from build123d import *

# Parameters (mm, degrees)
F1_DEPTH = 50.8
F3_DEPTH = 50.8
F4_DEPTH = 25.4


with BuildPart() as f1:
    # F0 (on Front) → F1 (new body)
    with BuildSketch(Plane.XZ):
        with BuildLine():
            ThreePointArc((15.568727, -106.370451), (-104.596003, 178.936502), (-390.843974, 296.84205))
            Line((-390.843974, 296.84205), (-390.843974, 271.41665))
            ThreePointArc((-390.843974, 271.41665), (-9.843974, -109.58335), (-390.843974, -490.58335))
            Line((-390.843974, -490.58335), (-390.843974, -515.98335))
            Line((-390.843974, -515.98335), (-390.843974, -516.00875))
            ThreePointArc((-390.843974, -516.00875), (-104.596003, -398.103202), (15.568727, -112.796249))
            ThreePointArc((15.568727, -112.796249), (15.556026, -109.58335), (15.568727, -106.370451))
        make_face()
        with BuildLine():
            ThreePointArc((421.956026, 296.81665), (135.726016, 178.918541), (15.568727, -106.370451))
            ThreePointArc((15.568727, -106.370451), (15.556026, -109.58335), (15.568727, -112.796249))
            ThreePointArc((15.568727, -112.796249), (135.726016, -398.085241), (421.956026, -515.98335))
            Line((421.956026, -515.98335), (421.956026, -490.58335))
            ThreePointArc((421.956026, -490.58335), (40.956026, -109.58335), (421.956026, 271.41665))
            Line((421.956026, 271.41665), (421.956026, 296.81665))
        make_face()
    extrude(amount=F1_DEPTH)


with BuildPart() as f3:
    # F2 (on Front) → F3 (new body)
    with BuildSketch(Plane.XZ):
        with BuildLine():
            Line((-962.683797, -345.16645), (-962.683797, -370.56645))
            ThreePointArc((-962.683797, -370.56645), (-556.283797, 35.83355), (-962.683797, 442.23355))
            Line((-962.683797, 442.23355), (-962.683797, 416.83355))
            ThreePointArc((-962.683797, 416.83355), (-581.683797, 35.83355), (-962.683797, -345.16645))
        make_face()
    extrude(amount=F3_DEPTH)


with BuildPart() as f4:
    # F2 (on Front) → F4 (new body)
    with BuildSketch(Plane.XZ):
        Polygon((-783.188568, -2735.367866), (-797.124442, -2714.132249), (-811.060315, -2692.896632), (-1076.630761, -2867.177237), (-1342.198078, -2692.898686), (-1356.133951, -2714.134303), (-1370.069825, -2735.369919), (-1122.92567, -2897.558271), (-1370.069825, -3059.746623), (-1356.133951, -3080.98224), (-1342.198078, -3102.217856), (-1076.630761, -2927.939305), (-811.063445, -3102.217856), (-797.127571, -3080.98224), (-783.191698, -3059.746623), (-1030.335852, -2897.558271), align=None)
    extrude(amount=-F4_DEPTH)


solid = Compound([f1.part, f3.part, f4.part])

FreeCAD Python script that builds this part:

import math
import FreeCAD as App
import Part
import Sketcher
from FreeCAD import Vector
Q = App.Units.Quantity

doc = App.newDocument("Part")
body = doc.addObject("PartDesign::Body", "Body")

# Sketch on XZ plane
sketch1 = body.newObject("Sketcher::SketchObject", "Sketch")
sketch1.AttachmentSupport = (doc.getObject("XZ_Plane"), [""])
sketch1.MapMode = "FlatFace"
sketch1.addGeometry(Part.ArcOfCircle(Part.Circle(Vector(-390.843974, -109.583351, 0), Vector(0, 0, 1), 406.425401), math.radians(0.452943), math.radians(90)), False)
sketch1.addGeometry(Part.LineSegment(Vector(-390.843974, 296.84205, 0), Vector(-390.843974, 271.41665, 0)), False)
sketch1.addGeometry(Part.ArcOfCircle(Part.Circle(Vector(-390.843974, -109.58335, 0), Vector(0, 0, 1), 381), math.radians(-90), math.radians(90)), False)
sketch1.addGeometry(Part.LineSegment(Vector(-390.843974, -490.58335, 0), Vector(-390.843974, -516.00875, 0)), False)
sketch1.addGeometry(Part.ArcOfCircle(Part.Circle(Vector(-390.843974, -109.583349, 0), Vector(0, 0, 1), 406.425401), math.radians(-90), math.radians(-0.452943)), False)
sketch1.addGeometry(Part.ArcOfCircle(Part.Circle(Vector(421.956026, -109.58335, 0), Vector(0, 0, 1), 406.4), math.radians(-179.547029), math.radians(-90)), False)
sketch1.addGeometry(Part.LineSegment(Vector(421.956026, -515.98335, 0), Vector(421.956026, -490.58335, 0)), False)
sketch1.addGeometry(Part.ArcOfCircle(Part.Circle(Vector(421.956026, -109.58335, 0), Vector(0, 0, 1), 381), math.radians(90), math.radians(270)), False)
sketch1.addGeometry(Part.LineSegment(Vector(421.956026, 271.41665, 0), Vector(421.956026, 296.81665, 0)), False)
sketch1.addGeometry(Part.ArcOfCircle(Part.Circle(Vector(421.956026, -109.58335, 0), Vector(0, 0, 1), 406.4), math.radians(90), math.radians(179.547029)), False)
sketch1.addConstraint(Sketcher.Constraint("Coincident", 0, 2, 1, 1))
sketch1.addConstraint(Sketcher.Constraint("Coincident", 1, 2, 2, 2))
sketch1.addConstraint(Sketcher.Constraint("Coincident", 2, 1, 3, 1))
sketch1.addConstraint(Sketcher.Constraint("Coincident", 3, 2, 4, 1))
sketch1.addConstraint(Sketcher.Constraint("Coincident", 4, 2, 5, 1))
sketch1.addConstraint(Sketcher.Constraint("Coincident", 5, 2, 6, 1))
sketch1.addConstraint(Sketcher.Constraint("Coincident", 6, 2, 7, 2))
sketch1.addConstraint(Sketcher.Constraint("Coincident", 7, 1, 8, 1))
sketch1.addConstraint(Sketcher.Constraint("Coincident", 8, 2, 9, 1))
sketch1.addConstraint(Sketcher.Constraint("Coincident", 9, 2, 0, 1))
sketch1.addConstraint(Sketcher.Constraint("Vertical", 1))
sketch1.addConstraint(Sketcher.Constraint("Vertical", 3))
sketch1.addConstraint(Sketcher.Constraint("Vertical", 6))
sketch1.addConstraint(Sketcher.Constraint("Vertical", 8))
sketch1.addConstraint(Sketcher.Constraint("Coincident", 2, 3, 0, 3))
sketch1.addConstraint(Sketcher.Constraint("Coincident", 4, 3, 0, 3))
sketch1.addConstraint(Sketcher.Constraint("Coincident", 7, 3, 5, 3))
sketch1.addConstraint(Sketcher.Constraint("Coincident", 9, 3, 5, 3))
sketch1.addConstraint(Sketcher.Constraint("Equal", 0, 4))
sketch1.addConstraint(Sketcher.Constraint("Equal", 2, 7))
sketch1.addConstraint(Sketcher.Constraint("Equal", 5, 9))
sketch1.addConstraint(Sketcher.Constraint("Horizontal", 4, 3, 5, 3))
sketch1.addConstraint(Sketcher.Constraint("Vertical", 4, 3, 0, 2))
sketch1.addConstraint(Sketcher.Constraint("Vertical", 1, 2, 2, 1))
sketch1.addConstraint(Sketcher.Constraint("Vertical", 9, 3, 5, 2))
sketch1.addConstraint(Sketcher.Constraint("Vertical", 6, 2, 7, 1))
sketch1.addConstraint(Sketcher.Constraint("Radius", 2, Q("15 in")))
sketch1.addConstraint(Sketcher.Constraint("Radius", 5, Q("16 in")))
sketch1.addConstraint(Sketcher.Constraint("Radius", 0, Q("16.001 in")))
sketch1.addConstraint(Sketcher.Constraint("DistanceX", 2, 3, 5, 3, Q("32 in")))
sketch1.addConstraint(Sketcher.Constraint("DistanceY", 0, 3, -1, 1, Q("109.583351 mm")))
sketch1.addConstraint(Sketcher.Constraint("DistanceX", 0, 3, -1, 1, Q("390.843974 mm")))
pad1 = body.newObject("PartDesign::Pad", "Pad")
pad1.Profile = sketch1
pad1.Length = Q("2 in")
body2 = doc.addObject("PartDesign::Body", "Body001")

# Sketch on XZ plane
sketch2 = body2.newObject("Sketcher::SketchObject", "Sketch001")
sketch2.AttachmentSupport = (doc.getObject("XZ_Plane001"), [""])
sketch2.MapMode = "FlatFace"
sketch2.addGeometry(Part.LineSegment(Vector(-963, -345, 0), Vector(-963, -371, 0)), False)
sketch2.addGeometry(Part.ArcOfCircle(Part.Circle(Vector(-963, 36, 0), Vector(0, 0, 1), 406), math.radians(-90), math.radians(90)), False)
sketch2.addGeometry(Part.LineSegment(Vector(-963, 442, 0), Vector(-963, 417, 0)), False)
sketch2.addGeometry(Part.ArcOfCircle(Part.Circle(Vector(-963, 36, 0), Vector(0, 0, 1), 381), math.radians(-90), math.radians(90)), False)
sketch2.addConstraint(Sketcher.Constraint("Coincident", 0, 2, 1, 1))
sketch2.addConstraint(Sketcher.Constraint("Coincident", 1, 2, 2, 1))
sketch2.addConstraint(Sketcher.Constraint("Coincident", 2, 2, 3, 2))
sketch2.addConstraint(Sketcher.Constraint("Coincident", 3, 1, 0, 1))
sketch2.addConstraint(Sketcher.Constraint("Vertical", 0))
sketch2.addConstraint(Sketcher.Constraint("Vertical", 2))
sketch2.addConstraint(Sketcher.Constraint("Coincident", 3, 3, 1, 3))
sketch2.addConstraint(Sketcher.Constraint("Vertical", 3, 3, 0, 2))
sketch2.addConstraint(Sketcher.Constraint("Vertical", 0, 2, 1, 2))
sketch2.addConstraint(Sketcher.Constraint("Radius", 1, Q("16 in")))
sketch2.addConstraint(Sketcher.Constraint("Radius", 3, Q("15 in")))
sketch2.addConstraint(Sketcher.Constraint("DistanceY", -1, 1, 1, 3, Q("35.83355 mm")))
sketch2.addConstraint(Sketcher.Constraint("DistanceX", 1, 3, -1, 1, Q("962.683797 mm")))
pad2 = body2.newObject("PartDesign::Pad", "Pad001")
pad2.Profile = sketch2
pad2.Length = Q("2 in")
body3 = doc.addObject("PartDesign::Body", "Body002")

# Sketch on XZ plane
sketch3 = body3.newObject("Sketcher::SketchObject", "Sketch002")
sketch3.AttachmentSupport = (doc.getObject("XZ_Plane002"), [""])
sketch3.MapMode = "FlatFace"
sketch3.addGeometry(Part.LineSegment(Vector(-783, -2735, 0), Vector(-797, -2714, 0)), False)
sketch3.addGeometry(Part.LineSegment(Vector(-797, -2714, 0), Vector(-811, -2693, 0)), False)
sketch3.addGeometry(Part.LineSegment(Vector(-811, -2693, 0), Vector(-1077, -2867, 0)), False)
sketch3.addGeometry(Part.LineSegment(Vector(-1077, -2867, 0), Vector(-1342, -2693, 0)), False)
sketch3.addGeometry(Part.LineSegment(Vector(-1342, -2693, 0), Vector(-1356, -2714, 0)), False)
sketch3.addGeometry(Part.LineSegment(Vector(-1356, -2714, 0), Vector(-1370, -2735, 0)), False)
sketch3.addGeometry(Part.LineSegment(Vector(-1370, -2735, 0), Vector(-1123, -2898, 0)), False)
sketch3.addGeometry(Part.LineSegment(Vector(-1123, -2898, 0), Vector(-1370, -3060, 0)), False)
sketch3.addGeometry(Part.LineSegment(Vector(-1370, -3060, 0), Vector(-1356, -3081, 0)), False)
sketch3.addGeometry(Part.LineSegment(Vector(-1356, -3081, 0), Vector(-1342, -3102, 0)), False)
sketch3.addGeometry(Part.LineSegment(Vector(-1342, -3102, 0), Vector(-1077, -2928, 0)), False)
sketch3.addGeometry(Part.LineSegment(Vector(-1077, -2928, 0), Vector(-811, -3102, 0)), False)
sketch3.addGeometry(Part.LineSegment(Vector(-811, -3102, 0), Vector(-797, -3081, 0)), False)
sketch3.addGeometry(Part.LineSegment(Vector(-797, -3081, 0), Vector(-783, -3060, 0)), False)
sketch3.addGeometry(Part.LineSegment(Vector(-783, -3060, 0), Vector(-1030, -2898, 0)), False)
sketch3.addGeometry(Part.LineSegment(Vector(-1030, -2898, 0), Vector(-783, -2735, 0)), False)
sketch3.addConstraint(Sketcher.Constraint("Coincident", 0, 2, 1, 1))
sketch3.addConstraint(Sketcher.Constraint("Coincident", 1, 2, 2, 1))
sketch3.addConstraint(Sketcher.Constraint("Coincident", 2, 2, 3, 1))
sketch3.addConstraint(Sketcher.Constraint("Coincident", 3, 2, 4, 1))
sketch3.addConstraint(Sketcher.Constraint("Coincident", 4, 2, 5, 1))
sketch3.addConstraint(Sketcher.Constraint("Coincident", 5, 2, 6, 1))
sketch3.addConstraint(Sketcher.Constraint("Coincident", 6, 2, 7, 1))
sketch3.addConstraint(Sketcher.Constraint("Coincident", 7, 2, 8, 1))
sketch3.addConstraint(Sketcher.Constraint("Coincident", 8, 2, 9, 1))
sketch3.addConstraint(Sketcher.Constraint("Coincident", 9, 2, 10, 1))
sketch3.addConstraint(Sketcher.Constraint("Coincident", 10, 2, 11, 1))
sketch3.addConstraint(Sketcher.Constraint("Coincident", 11, 2, 12, 1))
sketch3.addConstraint(Sketcher.Constraint("Coincident", 12, 2, 13, 1))
sketch3.addConstraint(Sketcher.Constraint("Coincident", 13, 2, 14, 1))
sketch3.addConstraint(Sketcher.Constraint("Coincident", 14, 2, 15, 1))
sketch3.addConstraint(Sketcher.Constraint("Coincident", 15, 2, 0, 1))
sketch3.addConstraint(Sketcher.Constraint("Parallel", 0, 1))
sketch3.addConstraint(Sketcher.Constraint("Perpendicular", 1, 2))
sketch3.addConstraint(Sketcher.Constraint("Perpendicular", 3, 4))
sketch3.addConstraint(Sketcher.Constraint("Parallel", 4, 5))
sketch3.addConstraint(Sketcher.Constraint("Perpendicular", 5, 6))
sketch3.addConstraint(Sketcher.Constraint("Parallel", 2, 7))
sketch3.addConstraint(Sketcher.Constraint("Perpendicular", 7, 8))
sketch3.addConstraint(Sketcher.Constraint("Parallel", 8, 9))
sketch3.addConstraint(Sketcher.Constraint("Perpendicular", 9, 10))
sketch3.addConstraint(Sketcher.Constraint("Parallel", 6, 11))
sketch3.addConstraint(Sketcher.Constraint("Perpendicular", 11, 12))
sketch3.addConstraint(Sketcher.Constraint("Parallel", 12, 13))
sketch3.addConstraint(Sketcher.Constraint("Perpendicular", 13, 14))
sketch3.addConstraint(Sketcher.Constraint("Parallel", 10, 15))
sketch3.addConstraint(Sketcher.Constraint("Horizontal", 9, 2, 11, 2))
sketch3.addConstraint(Sketcher.Constraint("Horizontal", 8, 2, 12, 2))
sketch3.addConstraint(Sketcher.Constraint("Horizontal", 7, 2, 13, 2))
sketch3.addConstraint(Sketcher.Constraint("Horizontal", 6, 2, 14, 2))
sketch3.addConstraint(Sketcher.Constraint("Vertical", 5, 2, 7, 2))
sketch3.addConstraint(Sketcher.Constraint("Vertical", 4, 2, 8, 2))
sketch3.addConstraint(Sketcher.Constraint("Vertical", 3, 2, 9, 2))
sketch3.addConstraint(Sketcher.Constraint("Vertical", 2, 2, 10, 2))
sketch3.addConstraint(Sketcher.Constraint("Equal", 0, 1))
sketch3.addConstraint(Sketcher.Constraint("Equal", 1, 4))
sketch3.addConstraint(Sketcher.Constraint("Equal", 4, 5))
sketch3.addConstraint(Sketcher.Constraint("Distance", 0, Q("1 in")))
sketch3.addConstraint(Sketcher.Constraint("DistanceX", 13, 2, -1, 1, Q("783.191698 mm")))
sketch3.addConstraint(Sketcher.Constraint("DistanceX", 6, 2, 12, 2, Q("325.798099 mm")))
sketch3.addConstraint(Sketcher.Constraint("Distance", 3, Q("317.64605 mm")))
sketch3.addConstraint(Sketcher.Constraint("Distance", 6, Q("295.610039 mm")))
sketch3.addConstraint(Sketcher.Constraint("Distance", 15, Q("295.613781 mm")))
sketch3.addConstraint(Sketcher.Constraint("DistanceY", 0, 2, -1, 1, Q("2714.132249 mm")))
pad3 = body3.newObject("PartDesign::Pad", "Pad002")
pad3.Profile = sketch3
pad3.Length = Q("1 in")
pad3.Reversed = True

doc.recompute()
